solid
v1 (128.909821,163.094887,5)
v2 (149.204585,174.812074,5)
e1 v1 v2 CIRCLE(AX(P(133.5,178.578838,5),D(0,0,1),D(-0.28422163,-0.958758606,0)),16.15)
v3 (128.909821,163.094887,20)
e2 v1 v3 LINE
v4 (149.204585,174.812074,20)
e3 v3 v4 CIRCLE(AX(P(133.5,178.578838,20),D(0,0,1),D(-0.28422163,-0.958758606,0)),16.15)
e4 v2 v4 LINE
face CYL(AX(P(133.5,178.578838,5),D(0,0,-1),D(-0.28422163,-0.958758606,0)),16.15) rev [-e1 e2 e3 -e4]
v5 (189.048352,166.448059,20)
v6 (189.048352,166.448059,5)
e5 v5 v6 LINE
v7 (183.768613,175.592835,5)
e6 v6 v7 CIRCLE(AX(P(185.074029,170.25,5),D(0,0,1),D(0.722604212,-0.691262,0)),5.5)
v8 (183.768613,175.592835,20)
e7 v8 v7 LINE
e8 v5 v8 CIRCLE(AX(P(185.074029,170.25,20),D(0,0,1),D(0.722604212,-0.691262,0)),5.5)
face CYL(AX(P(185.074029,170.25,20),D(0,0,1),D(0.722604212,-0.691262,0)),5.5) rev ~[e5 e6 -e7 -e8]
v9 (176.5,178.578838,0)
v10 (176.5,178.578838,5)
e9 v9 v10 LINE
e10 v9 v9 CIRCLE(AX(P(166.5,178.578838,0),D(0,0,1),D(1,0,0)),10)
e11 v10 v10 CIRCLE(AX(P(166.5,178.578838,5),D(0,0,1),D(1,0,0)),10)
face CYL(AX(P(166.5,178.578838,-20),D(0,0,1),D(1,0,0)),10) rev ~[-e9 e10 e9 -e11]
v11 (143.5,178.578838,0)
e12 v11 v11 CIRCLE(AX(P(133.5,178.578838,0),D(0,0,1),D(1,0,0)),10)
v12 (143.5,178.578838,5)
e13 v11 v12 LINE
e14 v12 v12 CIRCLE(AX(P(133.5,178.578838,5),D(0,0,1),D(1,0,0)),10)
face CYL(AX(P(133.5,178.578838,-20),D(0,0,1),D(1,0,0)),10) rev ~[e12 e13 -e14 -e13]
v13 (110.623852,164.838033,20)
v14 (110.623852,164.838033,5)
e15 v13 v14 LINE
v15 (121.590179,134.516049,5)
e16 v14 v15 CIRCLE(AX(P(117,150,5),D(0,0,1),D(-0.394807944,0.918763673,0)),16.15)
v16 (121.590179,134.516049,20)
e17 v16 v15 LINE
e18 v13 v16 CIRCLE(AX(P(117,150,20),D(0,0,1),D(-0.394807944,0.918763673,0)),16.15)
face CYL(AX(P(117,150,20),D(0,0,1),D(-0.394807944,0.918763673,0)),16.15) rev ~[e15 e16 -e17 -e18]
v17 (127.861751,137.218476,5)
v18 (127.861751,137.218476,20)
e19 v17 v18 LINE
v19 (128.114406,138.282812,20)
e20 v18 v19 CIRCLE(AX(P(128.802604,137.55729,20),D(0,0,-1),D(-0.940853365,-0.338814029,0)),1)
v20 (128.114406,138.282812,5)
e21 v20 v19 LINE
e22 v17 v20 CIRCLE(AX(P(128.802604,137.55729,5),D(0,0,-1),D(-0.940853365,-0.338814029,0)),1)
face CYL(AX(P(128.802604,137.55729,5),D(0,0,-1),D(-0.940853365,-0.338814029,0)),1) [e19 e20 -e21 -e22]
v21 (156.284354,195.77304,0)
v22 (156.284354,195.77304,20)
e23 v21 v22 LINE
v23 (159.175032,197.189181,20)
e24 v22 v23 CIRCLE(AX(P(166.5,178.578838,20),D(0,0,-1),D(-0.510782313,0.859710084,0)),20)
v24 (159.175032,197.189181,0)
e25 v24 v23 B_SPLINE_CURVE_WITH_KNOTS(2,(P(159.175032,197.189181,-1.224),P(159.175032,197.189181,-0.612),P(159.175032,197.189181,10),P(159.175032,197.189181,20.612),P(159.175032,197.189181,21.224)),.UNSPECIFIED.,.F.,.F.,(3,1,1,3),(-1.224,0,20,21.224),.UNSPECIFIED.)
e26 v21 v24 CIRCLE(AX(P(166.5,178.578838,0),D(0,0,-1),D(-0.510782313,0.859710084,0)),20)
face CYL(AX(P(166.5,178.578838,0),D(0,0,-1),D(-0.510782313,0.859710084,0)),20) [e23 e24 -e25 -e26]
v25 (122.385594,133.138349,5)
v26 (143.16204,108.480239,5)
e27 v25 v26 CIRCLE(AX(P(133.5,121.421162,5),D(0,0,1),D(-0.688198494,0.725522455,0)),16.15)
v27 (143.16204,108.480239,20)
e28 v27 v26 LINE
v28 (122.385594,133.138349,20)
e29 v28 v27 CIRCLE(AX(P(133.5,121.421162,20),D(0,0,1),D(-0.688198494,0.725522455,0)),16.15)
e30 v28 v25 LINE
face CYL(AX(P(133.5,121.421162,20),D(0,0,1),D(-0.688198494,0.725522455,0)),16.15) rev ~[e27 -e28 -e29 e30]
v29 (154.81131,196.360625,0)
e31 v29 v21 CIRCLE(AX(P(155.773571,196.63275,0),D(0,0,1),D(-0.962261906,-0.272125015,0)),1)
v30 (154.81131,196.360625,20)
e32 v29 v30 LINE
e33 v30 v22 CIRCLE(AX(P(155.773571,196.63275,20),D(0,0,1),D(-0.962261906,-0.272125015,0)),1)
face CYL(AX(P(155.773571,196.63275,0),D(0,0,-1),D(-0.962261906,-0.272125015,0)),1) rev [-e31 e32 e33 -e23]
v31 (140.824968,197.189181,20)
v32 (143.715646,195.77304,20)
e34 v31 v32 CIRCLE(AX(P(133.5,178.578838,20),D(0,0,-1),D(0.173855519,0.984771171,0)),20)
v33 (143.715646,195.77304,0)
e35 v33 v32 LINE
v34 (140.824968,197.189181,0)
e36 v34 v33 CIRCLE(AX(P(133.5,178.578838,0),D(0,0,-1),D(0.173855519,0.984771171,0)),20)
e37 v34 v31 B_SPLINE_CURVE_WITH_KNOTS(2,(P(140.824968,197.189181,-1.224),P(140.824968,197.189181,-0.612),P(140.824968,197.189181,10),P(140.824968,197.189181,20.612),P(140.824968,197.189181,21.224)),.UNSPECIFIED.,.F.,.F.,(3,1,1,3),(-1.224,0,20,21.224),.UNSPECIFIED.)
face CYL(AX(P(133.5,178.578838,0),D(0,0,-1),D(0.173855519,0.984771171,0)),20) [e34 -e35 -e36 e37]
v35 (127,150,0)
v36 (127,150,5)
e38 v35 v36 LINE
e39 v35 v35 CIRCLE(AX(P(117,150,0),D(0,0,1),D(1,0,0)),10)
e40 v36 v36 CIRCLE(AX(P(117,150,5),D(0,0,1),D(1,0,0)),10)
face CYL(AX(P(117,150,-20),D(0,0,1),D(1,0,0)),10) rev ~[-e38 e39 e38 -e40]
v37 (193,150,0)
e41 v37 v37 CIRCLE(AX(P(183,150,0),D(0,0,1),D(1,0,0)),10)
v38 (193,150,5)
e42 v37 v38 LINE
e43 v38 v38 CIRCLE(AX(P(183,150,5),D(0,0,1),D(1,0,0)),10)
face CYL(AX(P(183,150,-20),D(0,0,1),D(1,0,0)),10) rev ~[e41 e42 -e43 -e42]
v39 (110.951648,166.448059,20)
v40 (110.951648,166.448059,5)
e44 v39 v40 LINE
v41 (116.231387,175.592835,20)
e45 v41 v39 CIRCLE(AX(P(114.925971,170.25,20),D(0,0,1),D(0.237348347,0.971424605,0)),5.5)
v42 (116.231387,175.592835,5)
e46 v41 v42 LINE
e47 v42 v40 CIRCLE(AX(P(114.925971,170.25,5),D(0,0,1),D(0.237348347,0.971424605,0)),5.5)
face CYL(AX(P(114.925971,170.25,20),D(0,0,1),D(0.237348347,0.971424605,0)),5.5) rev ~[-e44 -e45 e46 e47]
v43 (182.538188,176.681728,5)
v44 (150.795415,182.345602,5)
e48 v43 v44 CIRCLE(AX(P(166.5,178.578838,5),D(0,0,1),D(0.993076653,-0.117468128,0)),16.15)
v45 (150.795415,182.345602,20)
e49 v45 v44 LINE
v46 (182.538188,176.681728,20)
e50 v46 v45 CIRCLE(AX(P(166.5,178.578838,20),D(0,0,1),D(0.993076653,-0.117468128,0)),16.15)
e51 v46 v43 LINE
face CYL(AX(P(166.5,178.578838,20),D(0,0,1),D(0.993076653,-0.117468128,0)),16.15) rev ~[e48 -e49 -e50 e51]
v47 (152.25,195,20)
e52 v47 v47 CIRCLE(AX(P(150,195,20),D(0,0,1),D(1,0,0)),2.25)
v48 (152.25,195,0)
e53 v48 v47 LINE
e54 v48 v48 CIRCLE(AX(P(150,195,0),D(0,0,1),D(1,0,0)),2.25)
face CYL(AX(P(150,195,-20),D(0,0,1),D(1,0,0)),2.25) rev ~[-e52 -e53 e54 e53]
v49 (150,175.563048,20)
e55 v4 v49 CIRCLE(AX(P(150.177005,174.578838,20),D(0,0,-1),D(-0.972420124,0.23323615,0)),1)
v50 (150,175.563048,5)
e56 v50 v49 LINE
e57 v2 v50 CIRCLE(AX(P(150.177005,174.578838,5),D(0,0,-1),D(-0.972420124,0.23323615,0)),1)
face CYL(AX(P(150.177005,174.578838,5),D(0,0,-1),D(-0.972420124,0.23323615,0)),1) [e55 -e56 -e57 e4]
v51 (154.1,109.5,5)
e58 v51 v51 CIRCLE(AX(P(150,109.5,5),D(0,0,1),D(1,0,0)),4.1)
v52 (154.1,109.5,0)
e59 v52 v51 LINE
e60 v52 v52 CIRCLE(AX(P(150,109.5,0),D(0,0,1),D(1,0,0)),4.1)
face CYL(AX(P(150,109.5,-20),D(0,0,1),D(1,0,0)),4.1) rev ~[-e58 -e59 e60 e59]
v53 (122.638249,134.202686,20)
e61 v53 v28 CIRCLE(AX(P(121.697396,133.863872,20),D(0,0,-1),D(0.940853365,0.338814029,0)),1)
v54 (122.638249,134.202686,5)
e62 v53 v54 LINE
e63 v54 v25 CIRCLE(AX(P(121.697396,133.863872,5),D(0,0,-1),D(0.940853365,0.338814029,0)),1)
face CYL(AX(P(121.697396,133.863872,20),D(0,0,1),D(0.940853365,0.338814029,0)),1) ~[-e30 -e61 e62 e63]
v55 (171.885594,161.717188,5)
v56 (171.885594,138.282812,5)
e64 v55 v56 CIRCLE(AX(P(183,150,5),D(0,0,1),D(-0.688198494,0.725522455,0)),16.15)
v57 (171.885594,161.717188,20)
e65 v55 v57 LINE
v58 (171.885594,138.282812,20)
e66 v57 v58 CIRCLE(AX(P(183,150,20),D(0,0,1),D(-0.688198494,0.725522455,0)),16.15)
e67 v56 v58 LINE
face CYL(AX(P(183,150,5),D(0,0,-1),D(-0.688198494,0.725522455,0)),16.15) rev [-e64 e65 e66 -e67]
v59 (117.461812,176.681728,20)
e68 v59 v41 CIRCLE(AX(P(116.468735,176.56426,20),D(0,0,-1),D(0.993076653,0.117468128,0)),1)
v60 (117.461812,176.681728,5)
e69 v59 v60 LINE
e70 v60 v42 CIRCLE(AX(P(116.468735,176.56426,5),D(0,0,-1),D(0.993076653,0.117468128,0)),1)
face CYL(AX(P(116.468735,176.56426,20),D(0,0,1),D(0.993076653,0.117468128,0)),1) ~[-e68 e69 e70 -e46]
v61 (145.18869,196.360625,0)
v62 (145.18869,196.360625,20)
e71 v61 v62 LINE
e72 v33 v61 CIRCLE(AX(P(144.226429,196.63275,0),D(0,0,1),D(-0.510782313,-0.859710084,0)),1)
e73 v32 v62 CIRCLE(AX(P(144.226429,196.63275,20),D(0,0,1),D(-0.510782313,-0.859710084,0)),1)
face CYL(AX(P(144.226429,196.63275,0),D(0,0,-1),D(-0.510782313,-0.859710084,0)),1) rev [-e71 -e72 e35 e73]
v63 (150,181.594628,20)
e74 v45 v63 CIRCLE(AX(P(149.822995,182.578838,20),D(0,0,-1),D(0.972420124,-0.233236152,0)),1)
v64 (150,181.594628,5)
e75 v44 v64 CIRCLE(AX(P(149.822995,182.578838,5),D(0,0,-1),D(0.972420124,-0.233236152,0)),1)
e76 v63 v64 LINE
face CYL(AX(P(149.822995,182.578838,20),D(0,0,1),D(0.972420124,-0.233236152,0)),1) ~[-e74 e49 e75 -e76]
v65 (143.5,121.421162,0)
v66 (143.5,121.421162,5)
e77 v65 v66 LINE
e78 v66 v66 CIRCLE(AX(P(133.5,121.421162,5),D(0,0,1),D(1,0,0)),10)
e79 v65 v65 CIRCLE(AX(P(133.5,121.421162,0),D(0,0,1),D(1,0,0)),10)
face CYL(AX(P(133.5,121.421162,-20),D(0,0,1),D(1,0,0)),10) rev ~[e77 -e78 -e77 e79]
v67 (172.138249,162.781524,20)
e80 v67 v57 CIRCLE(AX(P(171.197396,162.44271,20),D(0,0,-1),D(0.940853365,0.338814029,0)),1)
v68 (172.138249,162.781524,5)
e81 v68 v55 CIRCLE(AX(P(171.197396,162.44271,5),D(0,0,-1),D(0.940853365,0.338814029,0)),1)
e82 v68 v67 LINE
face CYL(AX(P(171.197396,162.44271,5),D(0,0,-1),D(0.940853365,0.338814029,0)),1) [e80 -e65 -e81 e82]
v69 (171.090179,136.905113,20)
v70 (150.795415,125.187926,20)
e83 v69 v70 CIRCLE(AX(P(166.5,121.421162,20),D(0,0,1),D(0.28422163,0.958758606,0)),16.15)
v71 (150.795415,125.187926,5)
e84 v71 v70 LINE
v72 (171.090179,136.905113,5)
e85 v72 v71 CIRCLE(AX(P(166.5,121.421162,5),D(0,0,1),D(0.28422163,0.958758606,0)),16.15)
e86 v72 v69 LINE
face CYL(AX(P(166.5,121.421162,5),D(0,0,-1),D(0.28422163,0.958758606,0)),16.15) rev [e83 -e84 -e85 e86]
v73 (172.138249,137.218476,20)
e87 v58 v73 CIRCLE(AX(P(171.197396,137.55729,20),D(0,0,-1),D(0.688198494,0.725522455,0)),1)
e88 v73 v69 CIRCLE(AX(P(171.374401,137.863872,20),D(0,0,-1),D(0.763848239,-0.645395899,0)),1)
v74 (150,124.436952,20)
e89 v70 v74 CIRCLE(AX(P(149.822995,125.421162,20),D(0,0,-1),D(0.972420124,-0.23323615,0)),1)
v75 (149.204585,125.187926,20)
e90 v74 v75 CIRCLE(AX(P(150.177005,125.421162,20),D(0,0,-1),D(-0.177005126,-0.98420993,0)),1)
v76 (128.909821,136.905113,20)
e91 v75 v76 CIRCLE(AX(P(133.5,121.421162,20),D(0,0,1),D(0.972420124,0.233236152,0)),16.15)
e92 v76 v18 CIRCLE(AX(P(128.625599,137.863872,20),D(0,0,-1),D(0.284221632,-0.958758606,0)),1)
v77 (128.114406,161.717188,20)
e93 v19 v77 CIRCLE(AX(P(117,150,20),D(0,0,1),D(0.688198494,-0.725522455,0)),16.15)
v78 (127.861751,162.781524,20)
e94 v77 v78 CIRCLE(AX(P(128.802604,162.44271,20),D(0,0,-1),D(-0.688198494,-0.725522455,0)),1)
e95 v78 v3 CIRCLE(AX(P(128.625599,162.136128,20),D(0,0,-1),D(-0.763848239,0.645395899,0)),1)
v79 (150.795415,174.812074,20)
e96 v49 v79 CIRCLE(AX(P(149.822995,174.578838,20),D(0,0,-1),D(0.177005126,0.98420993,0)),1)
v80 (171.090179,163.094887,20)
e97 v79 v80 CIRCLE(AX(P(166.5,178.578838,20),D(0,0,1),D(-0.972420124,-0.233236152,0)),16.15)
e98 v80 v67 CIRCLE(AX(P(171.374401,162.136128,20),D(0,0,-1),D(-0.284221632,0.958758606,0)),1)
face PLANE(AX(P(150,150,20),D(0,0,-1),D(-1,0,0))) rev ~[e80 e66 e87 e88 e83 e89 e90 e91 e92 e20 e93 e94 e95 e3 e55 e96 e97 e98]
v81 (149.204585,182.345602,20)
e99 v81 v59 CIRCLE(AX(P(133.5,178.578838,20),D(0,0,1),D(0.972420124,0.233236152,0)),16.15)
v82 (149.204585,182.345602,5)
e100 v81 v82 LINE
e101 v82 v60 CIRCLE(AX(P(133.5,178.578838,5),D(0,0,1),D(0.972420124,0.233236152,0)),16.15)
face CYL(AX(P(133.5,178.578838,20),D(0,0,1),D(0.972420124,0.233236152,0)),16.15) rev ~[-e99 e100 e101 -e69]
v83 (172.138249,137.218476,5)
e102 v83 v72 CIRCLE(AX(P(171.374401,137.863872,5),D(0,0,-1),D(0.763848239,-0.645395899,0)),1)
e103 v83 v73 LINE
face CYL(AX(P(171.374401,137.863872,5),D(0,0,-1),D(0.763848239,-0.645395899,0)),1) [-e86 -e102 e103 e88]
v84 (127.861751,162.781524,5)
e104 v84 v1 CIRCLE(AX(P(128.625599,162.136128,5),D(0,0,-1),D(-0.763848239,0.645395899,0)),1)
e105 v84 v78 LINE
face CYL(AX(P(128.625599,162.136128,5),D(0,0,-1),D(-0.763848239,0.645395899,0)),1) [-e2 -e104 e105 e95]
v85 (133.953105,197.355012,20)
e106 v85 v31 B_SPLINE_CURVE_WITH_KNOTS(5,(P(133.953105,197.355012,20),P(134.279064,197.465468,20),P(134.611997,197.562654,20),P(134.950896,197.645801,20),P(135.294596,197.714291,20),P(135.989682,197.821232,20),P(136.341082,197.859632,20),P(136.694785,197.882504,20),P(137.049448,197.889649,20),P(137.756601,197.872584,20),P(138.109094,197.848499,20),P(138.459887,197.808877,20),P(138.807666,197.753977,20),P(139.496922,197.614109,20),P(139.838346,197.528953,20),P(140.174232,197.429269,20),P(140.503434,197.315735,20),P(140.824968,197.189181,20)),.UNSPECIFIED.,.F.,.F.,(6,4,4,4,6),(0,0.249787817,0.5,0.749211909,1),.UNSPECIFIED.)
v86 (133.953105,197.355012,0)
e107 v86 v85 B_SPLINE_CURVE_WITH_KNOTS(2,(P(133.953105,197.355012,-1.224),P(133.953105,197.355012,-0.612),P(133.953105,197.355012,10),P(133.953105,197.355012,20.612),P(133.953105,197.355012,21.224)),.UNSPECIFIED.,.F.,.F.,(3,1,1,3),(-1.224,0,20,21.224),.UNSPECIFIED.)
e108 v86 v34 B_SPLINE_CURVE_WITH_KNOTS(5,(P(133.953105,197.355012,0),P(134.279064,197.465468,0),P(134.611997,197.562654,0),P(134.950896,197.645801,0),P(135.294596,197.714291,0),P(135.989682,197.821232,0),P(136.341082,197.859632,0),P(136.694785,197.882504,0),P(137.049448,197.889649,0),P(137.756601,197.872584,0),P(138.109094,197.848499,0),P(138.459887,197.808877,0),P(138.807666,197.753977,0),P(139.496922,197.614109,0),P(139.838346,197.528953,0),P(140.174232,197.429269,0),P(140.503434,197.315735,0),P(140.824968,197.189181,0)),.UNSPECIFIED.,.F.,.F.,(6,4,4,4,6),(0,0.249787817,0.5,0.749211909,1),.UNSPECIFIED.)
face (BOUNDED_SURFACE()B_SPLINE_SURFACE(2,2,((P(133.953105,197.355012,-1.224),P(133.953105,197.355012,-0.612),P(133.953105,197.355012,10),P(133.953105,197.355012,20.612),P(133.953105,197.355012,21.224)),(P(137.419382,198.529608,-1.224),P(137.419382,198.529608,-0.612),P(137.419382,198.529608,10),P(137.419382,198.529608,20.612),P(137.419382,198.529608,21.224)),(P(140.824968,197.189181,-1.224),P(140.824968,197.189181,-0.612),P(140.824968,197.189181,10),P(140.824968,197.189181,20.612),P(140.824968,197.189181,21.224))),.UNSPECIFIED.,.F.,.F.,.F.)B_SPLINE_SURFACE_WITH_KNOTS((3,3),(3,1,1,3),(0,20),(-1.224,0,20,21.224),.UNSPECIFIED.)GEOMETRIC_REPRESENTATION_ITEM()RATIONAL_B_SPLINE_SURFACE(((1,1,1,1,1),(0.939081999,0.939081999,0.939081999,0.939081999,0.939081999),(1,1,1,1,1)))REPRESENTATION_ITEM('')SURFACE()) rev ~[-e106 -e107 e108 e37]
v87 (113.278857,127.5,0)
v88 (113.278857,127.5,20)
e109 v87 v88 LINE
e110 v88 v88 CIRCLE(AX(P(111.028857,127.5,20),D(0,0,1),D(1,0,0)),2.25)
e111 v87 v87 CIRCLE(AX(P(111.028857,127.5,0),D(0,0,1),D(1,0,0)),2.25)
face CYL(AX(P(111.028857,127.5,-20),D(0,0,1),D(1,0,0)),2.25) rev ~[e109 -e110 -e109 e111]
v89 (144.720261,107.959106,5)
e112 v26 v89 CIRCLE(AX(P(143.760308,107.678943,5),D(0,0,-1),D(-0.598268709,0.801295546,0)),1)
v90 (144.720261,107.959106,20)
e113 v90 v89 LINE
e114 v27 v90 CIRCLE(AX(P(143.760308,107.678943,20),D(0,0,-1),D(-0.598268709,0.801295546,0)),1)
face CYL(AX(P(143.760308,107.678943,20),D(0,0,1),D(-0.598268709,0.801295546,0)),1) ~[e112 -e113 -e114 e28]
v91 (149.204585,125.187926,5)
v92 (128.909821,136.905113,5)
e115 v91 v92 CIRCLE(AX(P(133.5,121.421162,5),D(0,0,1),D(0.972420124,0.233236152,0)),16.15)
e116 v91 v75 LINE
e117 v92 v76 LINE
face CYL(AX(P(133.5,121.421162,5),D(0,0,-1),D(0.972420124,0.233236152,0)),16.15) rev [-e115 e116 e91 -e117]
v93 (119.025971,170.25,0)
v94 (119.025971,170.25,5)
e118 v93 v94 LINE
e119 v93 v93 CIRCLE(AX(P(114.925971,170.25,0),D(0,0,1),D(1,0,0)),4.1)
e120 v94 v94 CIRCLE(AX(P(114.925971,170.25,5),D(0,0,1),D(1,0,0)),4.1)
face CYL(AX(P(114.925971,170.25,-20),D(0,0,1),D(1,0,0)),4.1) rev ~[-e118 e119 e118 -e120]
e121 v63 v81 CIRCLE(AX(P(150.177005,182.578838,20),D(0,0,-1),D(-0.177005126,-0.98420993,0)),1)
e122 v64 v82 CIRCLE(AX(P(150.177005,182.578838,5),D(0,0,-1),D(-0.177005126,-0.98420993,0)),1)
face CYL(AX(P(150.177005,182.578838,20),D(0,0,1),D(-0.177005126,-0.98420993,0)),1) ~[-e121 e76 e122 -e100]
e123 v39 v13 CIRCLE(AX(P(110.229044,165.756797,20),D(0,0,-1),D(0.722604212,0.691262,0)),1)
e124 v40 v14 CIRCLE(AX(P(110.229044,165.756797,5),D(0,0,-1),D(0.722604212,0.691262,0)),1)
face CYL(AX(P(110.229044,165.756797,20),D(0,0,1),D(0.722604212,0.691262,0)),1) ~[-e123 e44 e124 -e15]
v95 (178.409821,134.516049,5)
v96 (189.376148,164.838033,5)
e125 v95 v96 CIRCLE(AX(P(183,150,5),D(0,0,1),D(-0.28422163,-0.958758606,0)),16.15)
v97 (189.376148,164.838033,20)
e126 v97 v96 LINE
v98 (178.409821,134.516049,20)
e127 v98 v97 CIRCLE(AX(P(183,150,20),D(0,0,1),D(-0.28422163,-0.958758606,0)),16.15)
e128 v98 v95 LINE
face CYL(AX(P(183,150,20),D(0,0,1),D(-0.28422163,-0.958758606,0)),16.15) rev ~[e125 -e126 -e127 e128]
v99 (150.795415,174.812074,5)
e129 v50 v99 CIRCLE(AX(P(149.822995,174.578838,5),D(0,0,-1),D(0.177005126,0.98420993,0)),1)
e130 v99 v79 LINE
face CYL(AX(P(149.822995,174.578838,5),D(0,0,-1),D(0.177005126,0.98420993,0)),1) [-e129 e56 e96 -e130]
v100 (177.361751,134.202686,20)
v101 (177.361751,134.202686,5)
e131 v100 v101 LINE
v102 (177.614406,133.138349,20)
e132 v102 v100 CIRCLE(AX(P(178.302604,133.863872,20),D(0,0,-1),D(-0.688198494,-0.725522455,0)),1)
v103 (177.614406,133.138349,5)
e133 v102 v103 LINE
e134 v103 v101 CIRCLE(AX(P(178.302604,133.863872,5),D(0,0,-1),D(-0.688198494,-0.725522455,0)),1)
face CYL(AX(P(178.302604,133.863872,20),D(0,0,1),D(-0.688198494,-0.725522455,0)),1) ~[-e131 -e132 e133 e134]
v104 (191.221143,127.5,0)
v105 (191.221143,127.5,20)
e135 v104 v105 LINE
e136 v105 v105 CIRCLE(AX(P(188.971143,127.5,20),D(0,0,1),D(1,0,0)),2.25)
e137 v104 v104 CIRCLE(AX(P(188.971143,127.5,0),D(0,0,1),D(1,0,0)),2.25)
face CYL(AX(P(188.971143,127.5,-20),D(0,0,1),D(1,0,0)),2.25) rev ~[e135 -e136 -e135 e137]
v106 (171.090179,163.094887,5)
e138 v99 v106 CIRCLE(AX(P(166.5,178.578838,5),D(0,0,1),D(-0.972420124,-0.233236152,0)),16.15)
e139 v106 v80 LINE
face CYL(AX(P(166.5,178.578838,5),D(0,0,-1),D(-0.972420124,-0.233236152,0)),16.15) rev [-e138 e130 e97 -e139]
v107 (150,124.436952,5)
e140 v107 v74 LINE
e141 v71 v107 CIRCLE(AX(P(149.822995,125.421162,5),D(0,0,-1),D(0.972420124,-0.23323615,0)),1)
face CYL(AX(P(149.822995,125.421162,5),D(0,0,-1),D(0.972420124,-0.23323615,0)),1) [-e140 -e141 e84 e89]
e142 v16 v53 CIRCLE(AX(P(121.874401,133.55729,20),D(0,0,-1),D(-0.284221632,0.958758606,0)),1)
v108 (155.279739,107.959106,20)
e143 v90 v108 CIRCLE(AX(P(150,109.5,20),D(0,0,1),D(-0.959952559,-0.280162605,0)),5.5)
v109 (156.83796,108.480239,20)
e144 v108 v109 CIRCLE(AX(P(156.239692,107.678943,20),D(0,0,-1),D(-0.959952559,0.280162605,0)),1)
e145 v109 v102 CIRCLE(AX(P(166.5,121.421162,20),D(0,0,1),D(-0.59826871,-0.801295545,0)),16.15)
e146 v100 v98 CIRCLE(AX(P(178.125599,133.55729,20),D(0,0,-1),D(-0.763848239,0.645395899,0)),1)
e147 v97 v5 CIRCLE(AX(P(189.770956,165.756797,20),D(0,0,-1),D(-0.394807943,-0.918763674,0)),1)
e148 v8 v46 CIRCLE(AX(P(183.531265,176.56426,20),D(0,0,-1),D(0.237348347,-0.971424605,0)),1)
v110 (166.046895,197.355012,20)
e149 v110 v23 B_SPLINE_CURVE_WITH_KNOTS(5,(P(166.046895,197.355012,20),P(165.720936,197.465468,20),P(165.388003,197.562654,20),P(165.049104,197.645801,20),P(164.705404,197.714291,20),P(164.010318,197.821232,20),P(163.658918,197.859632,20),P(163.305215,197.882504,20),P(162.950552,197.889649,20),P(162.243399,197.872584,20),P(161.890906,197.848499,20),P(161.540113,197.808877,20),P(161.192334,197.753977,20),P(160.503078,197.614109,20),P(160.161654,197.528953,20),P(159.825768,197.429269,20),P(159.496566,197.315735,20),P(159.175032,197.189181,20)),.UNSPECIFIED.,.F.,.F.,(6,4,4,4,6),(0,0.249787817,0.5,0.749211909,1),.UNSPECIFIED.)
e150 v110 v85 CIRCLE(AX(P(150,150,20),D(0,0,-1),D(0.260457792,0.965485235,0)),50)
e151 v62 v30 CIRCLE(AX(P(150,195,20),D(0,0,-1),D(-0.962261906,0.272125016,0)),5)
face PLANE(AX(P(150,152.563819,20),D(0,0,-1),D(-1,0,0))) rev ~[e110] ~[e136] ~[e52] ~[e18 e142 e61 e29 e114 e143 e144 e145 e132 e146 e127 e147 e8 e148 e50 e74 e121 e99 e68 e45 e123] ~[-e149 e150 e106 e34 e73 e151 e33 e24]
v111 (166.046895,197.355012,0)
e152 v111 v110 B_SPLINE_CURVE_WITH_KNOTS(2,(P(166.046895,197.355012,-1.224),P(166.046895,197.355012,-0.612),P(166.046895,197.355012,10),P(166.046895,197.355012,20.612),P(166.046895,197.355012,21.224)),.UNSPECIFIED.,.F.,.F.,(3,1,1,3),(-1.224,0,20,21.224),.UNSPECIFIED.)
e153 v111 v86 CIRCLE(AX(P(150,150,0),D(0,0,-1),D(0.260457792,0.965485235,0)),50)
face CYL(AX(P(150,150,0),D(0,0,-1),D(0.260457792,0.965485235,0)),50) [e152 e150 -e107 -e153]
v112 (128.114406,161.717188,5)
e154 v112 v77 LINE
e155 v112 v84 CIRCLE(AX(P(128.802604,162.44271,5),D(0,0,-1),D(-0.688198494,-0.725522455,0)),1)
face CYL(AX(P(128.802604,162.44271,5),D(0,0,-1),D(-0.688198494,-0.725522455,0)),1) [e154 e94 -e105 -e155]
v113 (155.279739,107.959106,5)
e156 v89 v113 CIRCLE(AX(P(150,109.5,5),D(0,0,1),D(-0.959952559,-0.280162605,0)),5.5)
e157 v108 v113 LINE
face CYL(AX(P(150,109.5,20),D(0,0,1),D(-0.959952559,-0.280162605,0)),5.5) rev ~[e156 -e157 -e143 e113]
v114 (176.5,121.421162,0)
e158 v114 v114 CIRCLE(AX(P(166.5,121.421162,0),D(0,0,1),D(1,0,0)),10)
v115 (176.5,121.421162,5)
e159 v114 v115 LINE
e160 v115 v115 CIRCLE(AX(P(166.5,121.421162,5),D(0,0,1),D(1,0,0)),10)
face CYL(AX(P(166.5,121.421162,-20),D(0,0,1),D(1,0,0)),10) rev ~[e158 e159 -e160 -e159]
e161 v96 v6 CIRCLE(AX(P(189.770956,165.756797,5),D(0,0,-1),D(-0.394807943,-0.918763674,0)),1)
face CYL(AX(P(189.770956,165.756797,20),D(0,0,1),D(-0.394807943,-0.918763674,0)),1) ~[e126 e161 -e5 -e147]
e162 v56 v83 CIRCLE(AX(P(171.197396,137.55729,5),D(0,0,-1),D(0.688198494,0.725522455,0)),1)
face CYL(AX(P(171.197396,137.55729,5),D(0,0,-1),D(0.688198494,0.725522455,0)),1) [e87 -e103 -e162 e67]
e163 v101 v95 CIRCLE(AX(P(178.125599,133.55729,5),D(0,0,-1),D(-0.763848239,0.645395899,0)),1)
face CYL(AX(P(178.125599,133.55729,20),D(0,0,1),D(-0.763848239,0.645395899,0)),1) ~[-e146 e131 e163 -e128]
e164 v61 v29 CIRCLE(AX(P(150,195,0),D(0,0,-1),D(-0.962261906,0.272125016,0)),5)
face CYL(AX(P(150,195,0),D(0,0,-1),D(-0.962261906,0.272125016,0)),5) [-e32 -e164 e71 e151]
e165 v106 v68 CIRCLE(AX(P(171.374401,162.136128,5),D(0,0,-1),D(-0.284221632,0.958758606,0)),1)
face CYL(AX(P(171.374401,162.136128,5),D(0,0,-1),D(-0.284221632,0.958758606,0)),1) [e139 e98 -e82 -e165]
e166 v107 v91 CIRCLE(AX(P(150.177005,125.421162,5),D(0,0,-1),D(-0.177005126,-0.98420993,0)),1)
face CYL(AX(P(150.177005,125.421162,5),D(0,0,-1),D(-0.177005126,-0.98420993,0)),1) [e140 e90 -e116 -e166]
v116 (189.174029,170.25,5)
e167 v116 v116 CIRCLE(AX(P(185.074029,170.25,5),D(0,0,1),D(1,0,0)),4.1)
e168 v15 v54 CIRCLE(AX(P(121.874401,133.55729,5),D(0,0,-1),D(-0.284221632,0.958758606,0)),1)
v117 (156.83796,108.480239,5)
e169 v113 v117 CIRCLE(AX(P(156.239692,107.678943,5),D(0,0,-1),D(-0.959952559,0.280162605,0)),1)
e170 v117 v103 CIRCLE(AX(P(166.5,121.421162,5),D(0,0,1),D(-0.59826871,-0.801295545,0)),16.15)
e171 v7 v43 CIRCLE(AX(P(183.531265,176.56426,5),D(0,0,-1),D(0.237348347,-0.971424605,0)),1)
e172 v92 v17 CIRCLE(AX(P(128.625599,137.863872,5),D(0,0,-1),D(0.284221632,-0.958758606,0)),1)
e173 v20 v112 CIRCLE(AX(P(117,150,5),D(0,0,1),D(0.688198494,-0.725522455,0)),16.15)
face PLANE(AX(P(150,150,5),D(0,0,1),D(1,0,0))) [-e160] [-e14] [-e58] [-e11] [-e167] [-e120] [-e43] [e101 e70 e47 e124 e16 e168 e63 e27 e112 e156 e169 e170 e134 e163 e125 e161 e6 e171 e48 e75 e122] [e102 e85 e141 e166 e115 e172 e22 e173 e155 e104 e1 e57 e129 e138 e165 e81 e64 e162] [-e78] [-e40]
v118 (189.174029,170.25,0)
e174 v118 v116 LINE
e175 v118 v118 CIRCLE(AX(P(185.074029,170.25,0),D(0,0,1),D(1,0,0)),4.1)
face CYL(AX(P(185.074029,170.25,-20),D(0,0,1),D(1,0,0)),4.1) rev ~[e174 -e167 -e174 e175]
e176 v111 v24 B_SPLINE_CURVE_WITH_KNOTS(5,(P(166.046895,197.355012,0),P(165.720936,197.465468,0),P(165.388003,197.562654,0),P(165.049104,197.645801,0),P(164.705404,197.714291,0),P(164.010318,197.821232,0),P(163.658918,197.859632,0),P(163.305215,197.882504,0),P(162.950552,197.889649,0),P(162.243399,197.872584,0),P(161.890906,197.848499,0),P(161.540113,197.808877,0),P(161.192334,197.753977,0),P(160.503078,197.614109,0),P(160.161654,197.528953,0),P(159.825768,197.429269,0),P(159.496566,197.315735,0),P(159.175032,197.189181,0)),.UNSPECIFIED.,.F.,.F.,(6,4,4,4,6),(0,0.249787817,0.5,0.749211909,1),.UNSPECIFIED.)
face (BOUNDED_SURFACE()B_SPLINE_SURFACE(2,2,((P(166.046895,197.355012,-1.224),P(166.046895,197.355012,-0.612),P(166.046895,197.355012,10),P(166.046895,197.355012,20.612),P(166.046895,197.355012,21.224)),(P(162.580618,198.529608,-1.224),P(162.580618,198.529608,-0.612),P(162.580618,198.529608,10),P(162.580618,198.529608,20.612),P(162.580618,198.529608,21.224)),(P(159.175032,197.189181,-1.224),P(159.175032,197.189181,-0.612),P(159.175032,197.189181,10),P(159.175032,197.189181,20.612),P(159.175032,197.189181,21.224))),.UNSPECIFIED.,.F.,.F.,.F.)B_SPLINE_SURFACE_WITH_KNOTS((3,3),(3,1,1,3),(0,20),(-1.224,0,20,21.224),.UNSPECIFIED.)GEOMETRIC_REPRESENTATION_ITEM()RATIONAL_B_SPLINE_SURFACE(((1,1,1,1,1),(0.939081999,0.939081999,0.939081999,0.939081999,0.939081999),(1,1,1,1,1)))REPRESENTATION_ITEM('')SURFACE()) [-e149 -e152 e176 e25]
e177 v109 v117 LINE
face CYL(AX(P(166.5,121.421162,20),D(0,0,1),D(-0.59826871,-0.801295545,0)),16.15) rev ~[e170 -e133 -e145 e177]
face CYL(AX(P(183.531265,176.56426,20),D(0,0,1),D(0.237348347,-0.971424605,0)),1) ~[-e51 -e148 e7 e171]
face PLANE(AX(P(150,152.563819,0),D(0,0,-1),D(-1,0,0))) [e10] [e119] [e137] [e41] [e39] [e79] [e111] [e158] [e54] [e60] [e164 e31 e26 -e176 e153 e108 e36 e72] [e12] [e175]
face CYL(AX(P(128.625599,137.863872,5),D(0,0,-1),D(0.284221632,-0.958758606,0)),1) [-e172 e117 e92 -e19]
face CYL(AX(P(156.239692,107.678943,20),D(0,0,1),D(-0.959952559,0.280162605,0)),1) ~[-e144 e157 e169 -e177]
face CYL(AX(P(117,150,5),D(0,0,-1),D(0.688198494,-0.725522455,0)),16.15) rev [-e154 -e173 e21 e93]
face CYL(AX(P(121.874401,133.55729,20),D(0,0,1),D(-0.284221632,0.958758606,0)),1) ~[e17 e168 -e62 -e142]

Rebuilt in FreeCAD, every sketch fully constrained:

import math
import FreeCAD as App
import Part
import Sketcher

V = App.Vector


def edges_at(feature, points):
    """Names of the edges that pass closest to the given points."""
    edges = feature.Shape.Edges
    near = lambda p: min(range(len(edges)), key=lambda i: edges[i].distToShape(Part.Vertex(*p))[0])
    return sorted({f"Edge{near(p) + 1}" for p in points})

doc = App.newDocument("Part")
body = doc.addObject("PartDesign::Body", "Body")

# Sketch on XY plane
sketch1 = body.newObject("Sketcher::SketchObject", "Sketch")
sketch1.AttachmentSupport = (doc.getObject("XY_Plane"), [""])
sketch1.MapMode = "FlatFace"
sketch1.addGeometry(Part.ArcOfCircle(Part.Circle(V(150, 150, 0), V(0, 0, 1), 50), math.radians(105.097228), math.radians(434.902772)), False)
sketch1.addGeometry(Part.ArcOfCircle(Part.Circle(V(133.5, 178.578838, 0), V(0, 0, 1), 20), math.radians(59.284047), math.radians(79.987937)), False)
sketch1.addGeometry(Part.ArcOfCircle(Part.Circle(V(144.226429, 196.63275, 0), V(0, 0, 1), 1), math.radians(-120.715953), math.radians(-15.790757)), False)
sketch1.addGeometry(Part.ArcOfCircle(Part.Circle(V(150, 195, 0), V(0, 0, 1), 5), math.radians(15.790757), math.radians(164.209243)), False)
sketch1.addGeometry(Part.ArcOfCircle(Part.Circle(V(155.773571, 196.63275, 0), V(0, 0, 1), 1), math.radians(-164.209243), math.radians(-59.284047)), False)
sketch1.addGeometry(Part.ArcOfCircle(Part.Circle(V(166.5, 178.578838, 0), V(0, 0, 1), 20), math.radians(100.012063), math.radians(120.715953)), False)
sketch1.addConstraint(Sketcher.Constraint("Coincident", 0, 1, 1, 2))
sketch1.addConstraint(Sketcher.Constraint("Tangent", 1, 1, 2, 1))
sketch1.addConstraint(Sketcher.Constraint("Tangent", 2, 2, 3, 2))
sketch1.addConstraint(Sketcher.Constraint("Tangent", 3, 1, 4, 1))
sketch1.addConstraint(Sketcher.Constraint("Tangent", 4, 2, 5, 2))
sketch1.addConstraint(Sketcher.Constraint("Coincident", 5, 1, 0, 2))
sketch1.addConstraint(Sketcher.Constraint("Equal", 2, 4))
sketch1.addConstraint(Sketcher.Constraint("Equal", 1, 5))
sketch1.addConstraint(Sketcher.Constraint("Horizontal", 2, 3, 4, 3))
sketch1.addConstraint(Sketcher.Constraint("Horizontal", 1, 3, 5, 3))
sketch1.addConstraint(Sketcher.Constraint("Horizontal", 0, 1, 5, 1))
sketch1.addConstraint(Sketcher.Constraint("Radius", 0, 50.0))
sketch1.addConstraint(Sketcher.Constraint("Radius", 1, 20.0))
sketch1.addConstraint(Sketcher.Constraint("Radius", 2, 1.0))
sketch1.addConstraint(Sketcher.Constraint("Radius", 3, 5.0))
sketch1.addConstraint(Sketcher.Constraint("DistanceX", -1, 1, 0, 3, 150.0))
sketch1.addConstraint(Sketcher.Constraint("DistanceY", -1, 1, 0, 3, 150.0))
sketch1.addConstraint(Sketcher.Constraint("DistanceY", -1, 1, 3, 3, 195.0))
sketch1.addConstraint(Sketcher.Constraint("DistanceX", 1, 3, 5, 3, 33.0))
sketch1.addConstraint(Sketcher.Constraint("DistanceY", 1, 3, 1, 1, 17.194202))
pad1 = body.newObject("PartDesign::Pad", "Pad")
pad1.Profile = sketch1
pad1.Length = 20

# Sketch on XY plane
sketch2 = body.newObject("Sketcher::SketchObject", "Sketch001")
sketch2.AttachmentSupport = (doc.getObject("XY_Plane"), [""])
sketch2.MapMode = "FlatFace"
sketch2.AttachmentOffset = App.Placement(V(0, 0, 20), App.Rotation())
sketch2.addGeometry(Part.ArcOfCircle(Part.Circle(V(189.770956, 165.756797, 0), V(0, 0, 1), 1), math.radians(136.26991), math.radians(246.746003)), False)
sketch2.addGeometry(Part.ArcOfCircle(Part.Circle(V(185.074029, 170.25, 0), V(0, 0, 1), 5.5), math.radians(-43.73009), math.radians(103.73009)), False)
sketch2.addGeometry(Part.ArcOfCircle(Part.Circle(V(183.531265, 176.56426, 0), V(0, 0, 1), 1), math.radians(173.253997), math.radians(283.73009)), False)
sketch2.addGeometry(Part.ArcOfCircle(Part.Circle(V(166.5, 178.578838, 0), V(0, 0, 1), 16.15), math.radians(-6.746003), math.radians(166.512327)), False)
sketch2.addGeometry(Part.ArcOfCircle(Part.Circle(V(149.822995, 182.578838, 0), V(0, 0, 1), 1), math.radians(-79.804635), math.radians(-13.487673)), False)
sketch2.addGeometry(Part.ArcOfCircle(Part.Circle(V(150.177005, 182.578838, 0), V(0, 0, 1), 1), math.radians(-166.512327), math.radians(-100.195365)), False)
sketch2.addGeometry(Part.ArcOfCircle(Part.Circle(V(133.5, 178.578838, 0), V(0, 0, 1), 16.15), math.radians(13.487673), math.radians(186.746003)), False)
sketch2.addGeometry(Part.ArcOfCircle(Part.Circle(V(116.468735, 176.56426, 0), V(0, 0, 1), 1), math.radians(-103.73009), math.radians(6.746003)), False)
sketch2.addGeometry(Part.ArcOfCircle(Part.Circle(V(114.925971, 170.25, 0), V(0, 0, 1), 5.5), math.radians(76.26991), math.radians(223.73009)), False)
sketch2.addGeometry(Part.ArcOfCircle(Part.Circle(V(110.229044, 165.756797, 0), V(0, 0, 1), 1), math.radians(-66.746003), math.radians(43.73009)), False)
sketch2.addGeometry(Part.ArcOfCircle(Part.Circle(V(117, 150, 0), V(0, 0, 1), 16.15), math.radians(113.253997), math.radians(286.512327)), False)
sketch2.addGeometry(Part.ArcOfCircle(Part.Circle(V(121.874401, 133.55729, 0), V(0, 0, 1), 1), math.radians(40.195365), math.radians(106.512327)), False)
sketch2.addGeometry(Part.ArcOfCircle(Part.Circle(V(121.697396, 133.863872, 0), V(0, 0, 1), 1), math.radians(-46.512327), math.radians(19.804635)), False)
sketch2.addGeometry(Part.ArcOfCircle(Part.Circle(V(133.5, 121.421162, 0), V(0, 0, 1), 16.15), math.radians(133.487673), math.radians(306.746003)), False)
sketch2.addGeometry(Part.ArcOfCircle(Part.Circle(V(143.760308, 107.678943, 0), V(0, 0, 1), 1), math.radians(16.26991), math.radians(126.746003)), False)
sketch2.addGeometry(Part.ArcOfCircle(Part.Circle(V(150, 109.5, 0), V(0, 0, 1), 5.5), math.radians(-163.73009), math.radians(-16.26991)), False)
sketch2.addGeometry(Part.ArcOfCircle(Part.Circle(V(156.239692, 107.678943, 0), V(0, 0, 1), 1), math.radians(53.253997), math.radians(163.73009)), False)
sketch2.addGeometry(Part.ArcOfCircle(Part.Circle(V(166.5, 121.421162, 0), V(0, 0, 1), 16.15), math.radians(-126.746003), math.radians(46.512327)), False)
sketch2.addGeometry(Part.ArcOfCircle(Part.Circle(V(178.302604, 133.863872, 0), V(0, 0, 1), 1), math.radians(160.195365), math.radians(226.512327)), False)
sketch2.addGeometry(Part.ArcOfCircle(Part.Circle(V(178.125599, 133.55729, 0), V(0, 0, 1), 1), math.radians(73.487673), math.radians(139.804635)), False)
sketch2.addGeometry(Part.ArcOfCircle(Part.Circle(V(183, 150, 0), V(0, 0, 1), 16.15), math.radians(-106.512327), math.radians(66.746003)), False)
sketch2.addConstraint(Sketcher.Constraint("Coincident", 0, 1, 1, 1))
sketch2.addConstraint(Sketcher.Constraint("Coincident", 1, 2, 2, 2))
sketch2.addConstraint(Sketcher.Constraint("Coincident", 2, 1, 3, 1))
sketch2.addConstraint(Sketcher.Constraint("Coincident", 3, 2, 4, 2))
sketch2.addConstraint(Sketcher.Constraint("Coincident", 4, 1, 5, 2))
sketch2.addConstraint(Sketcher.Constraint("Coincident", 5, 1, 6, 1))
sketch2.addConstraint(Sketcher.Constraint("Coincident", 6, 2, 7, 2))
sketch2.addConstraint(Sketcher.Constraint("Coincident", 7, 1, 8, 1))
sketch2.addConstraint(Sketcher.Constraint("Coincident", 8, 2, 9, 2))
sketch2.addConstraint(Sketcher.Constraint("Coincident", 9, 1, 10, 1))
sketch2.addConstraint(Sketcher.Constraint("Coincident", 10, 2, 11, 2))
sketch2.addConstraint(Sketcher.Constraint("Coincident", 11, 1, 12, 2))
sketch2.addConstraint(Sketcher.Constraint("Coincident", 12, 1, 13, 1))
sketch2.addConstraint(Sketcher.Constraint("Coincident", 13, 2, 14, 2))
sketch2.addConstraint(Sketcher.Constraint("Coincident", 14, 1, 15, 1))
sketch2.addConstraint(Sketcher.Constraint("Coincident", 15, 2, 16, 2))
sketch2.addConstraint(Sketcher.Constraint("Coincident", 16, 1, 17, 1))
sketch2.addConstraint(Sketcher.Constraint("Coincident", 17, 2, 18, 2))
sketch2.addConstraint(Sketcher.Constraint("Coincident", 18, 1, 19, 2))
sketch2.addConstraint(Sketcher.Constraint("Coincident", 19, 1, 20, 1))
sketch2.addConstraint(Sketcher.Constraint("Coincident", 20, 2, 0, 2))
sketch2.addConstraint(Sketcher.Constraint("Radius", 0, 1.0))
sketch2.addConstraint(Sketcher.Constraint("Radius", 2, 1.0))
sketch2.addConstraint(Sketcher.Constraint("Radius", 4, 1.0))
sketch2.addConstraint(Sketcher.Constraint("Radius", 5, 1.0))
sketch2.addConstraint(Sketcher.Constraint("Radius", 7, 1.0))
sketch2.addConstraint(Sketcher.Constraint("Radius", 9, 1.0))
sketch2.addConstraint(Sketcher.Constraint("Radius", 11, 1.0))
sketch2.addConstraint(Sketcher.Constraint("Radius", 12, 1.0))
sketch2.addConstraint(Sketcher.Constraint("Radius", 14, 1.0))
sketch2.addConstraint(Sketcher.Constraint("Radius", 16, 1.0))
sketch2.addConstraint(Sketcher.Constraint("Radius", 18, 1.0))
sketch2.addConstraint(Sketcher.Constraint("Radius", 19, 1.0))
sketch2.addConstraint(Sketcher.Constraint("Radius", 1, 5.5))
sketch2.addConstraint(Sketcher.Constraint("Radius", 8, 5.5))
sketch2.addConstraint(Sketcher.Constraint("Radius", 15, 5.5))
sketch2.addConstraint(Sketcher.Constraint("Radius", 3, 16.15))
sketch2.addConstraint(Sketcher.Constraint("Radius", 6, 16.15))
sketch2.addConstraint(Sketcher.Constraint("Radius", 10, 16.15))
sketch2.addConstraint(Sketcher.Constraint("Radius", 13, 16.15))
sketch2.addConstraint(Sketcher.Constraint("Radius", 17, 16.15))
sketch2.addConstraint(Sketcher.Constraint("Radius", 20, 16.15))
sketch2.addConstraint(Sketcher.Constraint("DistanceX", -1, 1, 10, 3, 117.0))
sketch2.addConstraint(Sketcher.Constraint("DistanceY", -1, 1, 10, 3, 150.0))
sketch2.addConstraint(Sketcher.Constraint("DistanceX", -1, 1, 15, 3, 150.0))
sketch2.addConstraint(Sketcher.Constraint("DistanceX", -1, 1, 20, 3, 183.0))
sketch2.addConstraint(Sketcher.Constraint("DistanceY", -1, 1, 20, 3, 150.0))
sketch2.addConstraint(Sketcher.Constraint("DistanceX", -1, 1, 4, 1, 150.0))
sketch2.addConstraint(Sketcher.Constraint("DistanceY", 3, 3, 4, 3, 4.0))
sketch2.addConstraint(Sketcher.Constraint("DistanceY", 3, 3, 5, 3, 4.0))
sketch2.addConstraint(Sketcher.Constraint("DistanceY", 6, 3, 4, 3, 4.0))
sketch2.addConstraint(Sketcher.Constraint("DistanceX", 6, 3, 3, 3, 33.0))
sketch2.addConstraint(Sketcher.Constraint("DistanceX", 13, 3, 17, 3, 33.0))
sketch2.addConstraint(Sketcher.Constraint("DistanceX", -1, 1, 13, 3, 133.5))
sketch2.addConstraint(Sketcher.Constraint("DistanceY", -1, 1, 15, 3, 109.5))
sketch2.addConstraint(Sketcher.Constraint("DistanceY", -1, 1, 1, 3, 170.25))
sketch2.addConstraint(Sketcher.Constraint("DistanceY", -1, 1, 8, 3, 170.25))
sketch2.addConstraint(Sketcher.Constraint("DistanceX", -1, 1, 11, 3, 121.874401))
sketch2.addConstraint(Sketcher.Constraint("DistanceX", -1, 1, 19, 3, 178.125599))
sketch2.addConstraint(Sketcher.Constraint("DistanceY", 0, 1, 2, 3, 10.116201))
sketch2.addConstraint(Sketcher.Constraint("DistanceY", 8, 2, 7, 3, 10.116201))
sketch2.addConstraint(Sketcher.Constraint("DistanceY", 9, 1, 7, 1, 10.754802))
sketch2.addConstraint(Sketcher.Constraint("DistanceX", 12, 3, 12, 1, 0.688198))
sketch2.addConstraint(Sketcher.Constraint("DistanceY", 12, 1, 10, 2, 1.377699))
sketch2.addConstraint(Sketcher.Constraint("DistanceX", 13, 2, 15, 2, 12.117699))
sketch2.addConstraint(Sketcher.Constraint("DistanceX", 14, 1, 16, 1, 12.117699))
sketch2.addConstraint(Sketcher.Constraint("DistanceX", 17, 2, 18, 3, 0.688198))
sketch2.addConstraint(Sketcher.Constraint("DistanceY", 17, 2, 19, 1, 1.377699))
sketch2.addConstraint(Sketcher.Constraint("DistanceY", 20, 2, 1, 2, 10.754802))
sketch2.addConstraint(Sketcher.Constraint("DistanceX", -1, 1, 1, 3, 185.074029))
sketch2.addConstraint(Sketcher.Constraint("DistanceY", -1, 1, 2, 3, 176.56426))
sketch2.addConstraint(Sketcher.Constraint("DistanceY", -1, 1, 7, 3, 176.56426))
sketch2.addConstraint(Sketcher.Constraint("DistanceY", -1, 1, 12, 3, 133.863872))
sketch2.addConstraint(Sketcher.Constraint("DistanceY", -1, 1, 13, 3, 121.421162))
sketch2.addConstraint(Sketcher.Constraint("DistanceX", -1, 1, 16, 3, 156.239692))
sketch2.addConstraint(Sketcher.Constraint("DistanceY", -1, 1, 18, 3, 133.863872))
sketch2.addConstraint(Sketcher.Constraint("DistanceY", -1, 1, 2, 1, 176.681728))
sketch2.addConstraint(Sketcher.Constraint("DistanceY", -1, 1, 6, 2, 176.681728))
sketch2.addConstraint(Sketcher.Constraint("DistanceX", -1, 1, 9, 1, 110.623852))
sketch2.addConstraint(Sketcher.Constraint("DistanceX", -1, 1, 13, 2, 143.16204))
sketch2.addConstraint(Sketcher.Constraint("DistanceX", -1, 1, 14, 1, 144.720261))
sketch2.addConstraint(Sketcher.Constraint("DistanceX", -1, 1, 20, 2, 189.376148))
sketch2.addConstraint(Sketcher.Constraint("DistanceX", 5, 3, 3, 2, 0.61841))
sketch2.addConstraint(Sketcher.Constraint("DistanceX", 5, 1, 4, 3, 0.61841))
pocket1 = body.newObject("PartDesign::Pocket", "Pocket")
pocket1.Profile = sketch2
pocket1.Length = 15

# Sketch on XY plane
sketch3 = body.newObject("Sketcher::SketchObject", "Sketch002")
sketch3.AttachmentSupport = (doc.getObject("XY_Plane"), [""])
sketch3.MapMode = "FlatFace"
sketch3.AttachmentOffset = App.Placement(V(0, 0, 5), App.Rotation())
sketch3.addGeometry(Part.ArcOfCircle(Part.Circle(V(149.822995, 125.421162, 0), V(0, 0, 1), 1), math.radians(-79.804635), math.radians(-13.487673)), False)
sketch3.addGeometry(Part.ArcOfCircle(Part.Circle(V(166.5, 121.421162, 0), V(0, 0, 1), 16.15), math.radians(73.487673), math.radians(166.512327)), False)
sketch3.addGeometry(Part.ArcOfCircle(Part.Circle(V(171.374401, 137.863872, 0), V(0, 0, 1), 1), math.radians(-106.512327), math.radians(-40.195365)), False)
sketch3.addGeometry(Part.ArcOfCircle(Part.Circle(V(171.197396, 137.55729, 0), V(0, 0, 1), 1), math.radians(-19.804635), math.radians(46.512327)), False)
sketch3.addGeometry(Part.ArcOfCircle(Part.Circle(V(183, 150, 0), V(0, 0, 1), 16.15), math.radians(133.487673), math.radians(226.512327)), False)
sketch3.addGeometry(Part.ArcOfCircle(Part.Circle(V(171.197396, 162.44271, 0), V(0, 0, 1), 1), math.radians(-46.512327), math.radians(19.804635)), False)
sketch3.addGeometry(Part.ArcOfCircle(Part.Circle(V(171.374401, 162.136128, 0), V(0, 0, 1), 1), math.radians(40.195365), math.radians(106.512327)), False)
sketch3.addGeometry(Part.ArcOfCircle(Part.Circle(V(166.5, 178.578838, 0), V(0, 0, 1), 16.15), math.radians(-166.512327), math.radians(-73.487673)), False)
sketch3.addGeometry(Part.ArcOfCircle(Part.Circle(V(149.822995, 174.578838, 0), V(0, 0, 1), 1), math.radians(13.487673), math.radians(79.804635)), False)
sketch3.addGeometry(Part.ArcOfCircle(Part.Circle(V(150.177005, 174.578838, 0), V(0, 0, 1), 1), math.radians(100.195365), math.radians(166.512327)), False)
sketch3.addGeometry(Part.ArcOfCircle(Part.Circle(V(133.5, 178.578838, 0), V(0, 0, 1), 16.15), math.radians(-106.512327), math.radians(-13.487673)), False)
sketch3.addGeometry(Part.ArcOfCircle(Part.Circle(V(128.625599, 162.136128, 0), V(0, 0, 1), 1), math.radians(73.487673), math.radians(139.804635)), False)
sketch3.addGeometry(Part.ArcOfCircle(Part.Circle(V(128.802604, 162.44271, 0), V(0, 0, 1), 1), math.radians(160.195365), math.radians(226.512327)), False)
sketch3.addGeometry(Part.ArcOfCircle(Part.Circle(V(117, 150, 0), V(0, 0, 1), 16.15), math.radians(-46.512327), math.radians(46.512327)), False)
sketch3.addGeometry(Part.ArcOfCircle(Part.Circle(V(128.802604, 137.55729, 0), V(0, 0, 1), 1), math.radians(133.487673), math.radians(199.804635)), False)
sketch3.addGeometry(Part.ArcOfCircle(Part.Circle(V(128.625599, 137.863872, 0), V(0, 0, 1), 1), math.radians(-139.804635), math.radians(-73.487673)), False)
sketch3.addGeometry(Part.ArcOfCircle(Part.Circle(V(133.5, 121.421162, 0), V(0, 0, 1), 16.15), math.radians(13.487673), math.radians(106.512327)), False)
sketch3.addGeometry(Part.ArcOfCircle(Part.Circle(V(150.177005, 125.421162, 0), V(0, 0, 1), 1), math.radians(-166.512327), math.radians(-100.195365)), False)
sketch3.addConstraint(Sketcher.Constraint("Tangent", 0, 2, 1, 2))
sketch3.addConstraint(Sketcher.Constraint("Tangent", 1, 1, 2, 1))
sketch3.addConstraint(Sketcher.Constraint("Coincident", 2, 2, 3, 1))
sketch3.addConstraint(Sketcher.Constraint("Tangent", 3, 2, 4, 2))
sketch3.addConstraint(Sketcher.Constraint("Tangent", 4, 1, 5, 1))
sketch3.addConstraint(Sketcher.Constraint("Coincident", 5, 2, 6, 1))
sketch3.addConstraint(Sketcher.Constraint("Tangent", 6, 2, 7, 2))
sketch3.addConstraint(Sketcher.Constraint("Tangent", 7, 1, 8, 1))
sketch3.addConstraint(Sketcher.Constraint("Coincident", 8, 2, 9, 1))
sketch3.addConstraint(Sketcher.Constraint("Tangent", 9, 2, 10, 2))
sketch3.addConstraint(Sketcher.Constraint("Tangent", 10, 1, 11, 1))
sketch3.addConstraint(Sketcher.Constraint("Coincident", 11, 2, 12, 1))
sketch3.addConstraint(Sketcher.Constraint("Tangent", 12, 2, 13, 2))
sketch3.addConstraint(Sketcher.Constraint("Tangent", 13, 1, 14, 1))
sketch3.addConstraint(Sketcher.Constraint("Coincident", 14, 2, 15, 1))
sketch3.addConstraint(Sketcher.Constraint("Tangent", 15, 2, 16, 2))
sketch3.addConstraint(Sketcher.Constraint("Tangent", 16, 1, 17, 1))
sketch3.addConstraint(Sketcher.Constraint("Coincident", 17, 2, 0, 1))
sketch3.addConstraint(Sketcher.Constraint("Equal", 0, 2))
sketch3.addConstraint(Sketcher.Constraint("Equal", 2, 3))
sketch3.addConstraint(Sketcher.Constraint("Equal", 1, 4))
sketch3.addConstraint(Sketcher.Constraint("Equal", 3, 5))
sketch3.addConstraint(Sketcher.Constraint("Equal", 5, 6))
sketch3.addConstraint(Sketcher.Constraint("Equal", 4, 7))
sketch3.addConstraint(Sketcher.Constraint("Equal", 6, 8))
sketch3.addConstraint(Sketcher.Constraint("Equal", 8, 9))
sketch3.addConstraint(Sketcher.Constraint("Equal", 7, 10))
sketch3.addConstraint(Sketcher.Constraint("Equal", 9, 11))
sketch3.addConstraint(Sketcher.Constraint("Equal", 11, 12))
sketch3.addConstraint(Sketcher.Constraint("Equal", 10, 13))
sketch3.addConstraint(Sketcher.Constraint("Equal", 12, 14))
sketch3.addConstraint(Sketcher.Constraint("Equal", 14, 15))
sketch3.addConstraint(Sketcher.Constraint("Equal", 13, 16))
sketch3.addConstraint(Sketcher.Constraint("Equal", 15, 17))
sketch3.addConstraint(Sketcher.Constraint("Horizontal", 8, 3, 9, 3))
sketch3.addConstraint(Sketcher.Constraint("Horizontal", 7, 3, 10, 3))
sketch3.addConstraint(Sketcher.Constraint("Horizontal", 6, 3, 11, 3))
sketch3.addConstraint(Sketcher.Constraint("Horizontal", 5, 3, 12, 3))
sketch3.addConstraint(Sketcher.Constraint("Horizontal", 4, 3, 13, 3))
sketch3.addConstraint(Sketcher.Constraint("Horizontal", 3, 3, 14, 3))
sketch3.addConstraint(Sketcher.Constraint("Horizontal", 2, 3, 15, 3))
sketch3.addConstraint(Sketcher.Constraint("Horizontal", 1, 3, 16, 3))
sketch3.addConstraint(Sketcher.Constraint("Horizontal", 0, 3, 17, 3))
sketch3.addConstraint(Sketcher.Constraint("Horizontal", 5, 2, 11, 2))
sketch3.addConstraint(Sketcher.Constraint("Horizontal", 2, 2, 14, 2))
sketch3.addConstraint(Sketcher.Constraint("Vertical", 3, 3, 5, 3))
sketch3.addConstraint(Sketcher.Constraint("Vertical", 2, 3, 6, 3))
sketch3.addConstraint(Sketcher.Constraint("Vertical", 1, 3, 7, 3))
sketch3.addConstraint(Sketcher.Constraint("Vertical", 0, 3, 8, 3))
sketch3.addConstraint(Sketcher.Constraint("Vertical", 2, 2, 5, 2))
sketch3.addConstraint(Sketcher.Constraint("Radius", 0, 1.0))
sketch3.addConstraint(Sketcher.Constraint("Radius", 1, 16.15))
sketch3.addConstraint(Sketcher.Constraint("DistanceX", -1, 1, 4, 3, 183.0))
sketch3.addConstraint(Sketcher.Constraint("DistanceY", -1, 1, 4, 3, 150.0))
sketch3.addConstraint(Sketcher.Constraint("DistanceX", -1, 1, 13, 3, 117.0))
sketch3.addConstraint(Sketcher.Constraint("DistanceY", 1, 3, 0, 3, 4.0))
sketch3.addConstraint(Sketcher.Constraint("DistanceX", 10, 3, 7, 3, 33.0))
sketch3.addConstraint(Sketcher.Constraint("DistanceX", -1, 1, 2, 3, 171.374401))
sketch3.addConstraint(Sketcher.Constraint("DistanceX", 0, 3, 3, 3, 21.374401))
sketch3.addConstraint(Sketcher.Constraint("DistanceY", 1, 1, 3, 2, 1.377699))
pad2 = body.newObject("PartDesign::Pad", "Pad001")
pad2.Profile = sketch3
pad2.Length = 15

# Sketch on XY plane
sketch4 = body.newObject("Sketcher::SketchObject", "Sketch003")
sketch4.AttachmentSupport = (doc.getObject("XY_Plane"), [""])
sketch4.MapMode = "FlatFace"
sketch4.addGeometry(Part.Circle(V(150, 195, 0), V(0, 0, 1), 2.25), False)
sketch4.addGeometry(Part.Circle(V(111.028857, 127.5, 0), V(0, 0, 1), 2.25), False)
sketch4.addGeometry(Part.Circle(V(188.971143, 127.5, 0), V(0, 0, 1), 2.25), False)
sketch4.addConstraint(Sketcher.Constraint("Equal", 0, 1))
sketch4.addConstraint(Sketcher.Constraint("Equal", 1, 2))
sketch4.addConstraint(Sketcher.Constraint("Horizontal", 1, 3, 2, 3))
sketch4.addConstraint(Sketcher.Constraint("Diameter", 0, 4.5))
sketch4.addConstraint(Sketcher.Constraint("DistanceX", -1, 1, 0, 3, 150.0))
sketch4.addConstraint(Sketcher.Constraint("DistanceY", -1, 1, 0, 3, 195.0))
sketch4.addConstraint(Sketcher.Constraint("DistanceY", -1, 1, 1, 3, 127.5))
sketch4.addConstraint(Sketcher.Constraint("DistanceX", -1, 1, 1, 3, 111.028857))
sketch4.addConstraint(Sketcher.Constraint("DistanceX", -1, 1, 2, 3, 188.971143))
doc.recompute()
hole = body.newObject("PartDesign::Hole", "Hole")
hole.Profile = sketch4
hole.ThreadType = "None"
hole.Diameter = 4.5
hole.DepthType = "Dimension"
hole.Depth = 20
hole.DrillPoint = "Flat"
hole.Reversed = True

# Sketch on XY plane
sketch5 = body.newObject("Sketcher::SketchObject", "Sketch004")
sketch5.AttachmentSupport = (doc.getObject("XY_Plane"), [""])
sketch5.MapMode = "FlatFace"
sketch5.addGeometry(Part.Circle(V(133.5, 178.578838, 0), V(0, 0, 1), 10), False)
sketch5.addGeometry(Part.Circle(V(117, 150, 0), V(0, 0, 1), 10), False)
sketch5.addGeometry(Part.Circle(V(133.5, 121.421162, 0), V(0, 0, 1), 10), False)
sketch5.addGeometry(Part.Circle(V(166.5, 121.421162, 0), V(0, 0, 1), 10), False)
sketch5.addGeometry(Part.Circle(V(183, 150, 0), V(0, 0, 1), 10), False)
sketch5.addGeometry(Part.Circle(V(166.5, 178.578838, 0), V(0, 0, 1), 10), False)
sketch5.addConstraint(Sketcher.Constraint("Equal", 0, 1))
sketch5.addConstraint(Sketcher.Constraint("Equal", 1, 2))
sketch5.addConstraint(Sketcher.Constraint("Equal", 2, 3))
sketch5.addConstraint(Sketcher.Constraint("Equal", 3, 4))
sketch5.addConstraint(Sketcher.Constraint("Equal", 4, 5))
sketch5.addConstraint(Sketcher.Constraint("Horizontal", 2, 3, 3, 3))
sketch5.addConstraint(Sketcher.Constraint("Horizontal", 1, 3, 4, 3))
sketch5.addConstraint(Sketcher.Constraint("Horizontal", 0, 3, 5, 3))
sketch5.addConstraint(Sketcher.Constraint("Vertical", 0, 3, 2, 3))
sketch5.addConstraint(Sketcher.Constraint("Vertical", 3, 3, 5, 3))
sketch5.addConstraint(Sketcher.Constraint("Diameter", 0, 20.0))
sketch5.addConstraint(Sketcher.Constraint("DistanceX", -1, 1, 1, 3, 117.0))
sketch5.addConstraint(Sketcher.Constraint("DistanceY", -1, 1, 1, 3, 150.0))
sketch5.addConstraint(Sketcher.Constraint("DistanceX", -1, 1, 4, 3, 183.0))
sketch5.addConstraint(Sketcher.Constraint("DistanceX", 2, 3, 3, 3, 33.0))
sketch5.addConstraint(Sketcher.Constraint("DistanceX", -1, 1, 0, 3, 133.5))
sketch5.addConstraint(Sketcher.Constraint("DistanceY", -1, 1, 0, 3, 178.578838))
sketch5.addConstraint(Sketcher.Constraint("DistanceY", -1, 1, 2, 3, 121.421162))
doc.recompute()
hole2 = body.newObject("PartDesign::Hole", "Hole001")
hole2.Profile = sketch5
hole2.ThreadType = "None"
hole2.Diameter = 20
hole2.DepthType = "Dimension"
hole2.Depth = 20
hole2.DrillPoint = "Flat"
hole2.Reversed = True

# Sketch on XY plane
sketch6 = body.newObject("Sketcher::SketchObject", "Sketch005")
sketch6.AttachmentSupport = (doc.getObject("XY_Plane"), [""])
sketch6.MapMode = "FlatFace"
sketch6.addGeometry(Part.Circle(V(114.925971, 170.25, 0), V(0, 0, 1), 4.1), False)
sketch6.addGeometry(Part.Circle(V(185.074029, 170.25, 0), V(0, 0, 1), 4.1), False)
sketch6.addGeometry(Part.Circle(V(150, 109.5, 0), V(0, 0, 1), 4.1), False)
sketch6.addConstraint(Sketcher.Constraint("Equal", 0, 1))
sketch6.addConstraint(Sketcher.Constraint("Equal", 1, 2))
sketch6.addConstraint(Sketcher.Constraint("Horizontal", 0, 3, 1, 3))
sketch6.addConstraint(Sketcher.Constraint("Diameter", 0, 8.2))
sketch6.addConstraint(Sketcher.Constraint("DistanceX", -1, 1, 2, 3, 150.0))
sketch6.addConstraint(Sketcher.Constraint("DistanceY", -1, 1, 2, 3, 109.5))
sketch6.addConstraint(Sketcher.Constraint("DistanceY", -1, 1, 0, 3, 170.25))
sketch6.addConstraint(Sketcher.Constraint("DistanceX", -1, 1, 0, 3, 114.925971))
sketch6.addConstraint(Sketcher.Constraint("DistanceX", -1, 1, 1, 3, 185.074029))
doc.recompute()
hole3 = body.newObject("PartDesign::Hole", "Hole002")
hole3.Profile = sketch6
hole3.ThreadType = "None"
hole3.Diameter = 8.2
hole3.DepthType = "Dimension"
hole3.Depth = 20
hole3.DrillPoint = "Flat"
hole3.Reversed = True
doc.recompute()

fillet = body.newObject("PartDesign::Fillet", "Fillet")
fillet.Base = (hole3, edges_at(hole3, [(136.977, 198.274, 10), (163.023, 198.274, 10)]))
fillet.Radius = 10

doc.recompute()
